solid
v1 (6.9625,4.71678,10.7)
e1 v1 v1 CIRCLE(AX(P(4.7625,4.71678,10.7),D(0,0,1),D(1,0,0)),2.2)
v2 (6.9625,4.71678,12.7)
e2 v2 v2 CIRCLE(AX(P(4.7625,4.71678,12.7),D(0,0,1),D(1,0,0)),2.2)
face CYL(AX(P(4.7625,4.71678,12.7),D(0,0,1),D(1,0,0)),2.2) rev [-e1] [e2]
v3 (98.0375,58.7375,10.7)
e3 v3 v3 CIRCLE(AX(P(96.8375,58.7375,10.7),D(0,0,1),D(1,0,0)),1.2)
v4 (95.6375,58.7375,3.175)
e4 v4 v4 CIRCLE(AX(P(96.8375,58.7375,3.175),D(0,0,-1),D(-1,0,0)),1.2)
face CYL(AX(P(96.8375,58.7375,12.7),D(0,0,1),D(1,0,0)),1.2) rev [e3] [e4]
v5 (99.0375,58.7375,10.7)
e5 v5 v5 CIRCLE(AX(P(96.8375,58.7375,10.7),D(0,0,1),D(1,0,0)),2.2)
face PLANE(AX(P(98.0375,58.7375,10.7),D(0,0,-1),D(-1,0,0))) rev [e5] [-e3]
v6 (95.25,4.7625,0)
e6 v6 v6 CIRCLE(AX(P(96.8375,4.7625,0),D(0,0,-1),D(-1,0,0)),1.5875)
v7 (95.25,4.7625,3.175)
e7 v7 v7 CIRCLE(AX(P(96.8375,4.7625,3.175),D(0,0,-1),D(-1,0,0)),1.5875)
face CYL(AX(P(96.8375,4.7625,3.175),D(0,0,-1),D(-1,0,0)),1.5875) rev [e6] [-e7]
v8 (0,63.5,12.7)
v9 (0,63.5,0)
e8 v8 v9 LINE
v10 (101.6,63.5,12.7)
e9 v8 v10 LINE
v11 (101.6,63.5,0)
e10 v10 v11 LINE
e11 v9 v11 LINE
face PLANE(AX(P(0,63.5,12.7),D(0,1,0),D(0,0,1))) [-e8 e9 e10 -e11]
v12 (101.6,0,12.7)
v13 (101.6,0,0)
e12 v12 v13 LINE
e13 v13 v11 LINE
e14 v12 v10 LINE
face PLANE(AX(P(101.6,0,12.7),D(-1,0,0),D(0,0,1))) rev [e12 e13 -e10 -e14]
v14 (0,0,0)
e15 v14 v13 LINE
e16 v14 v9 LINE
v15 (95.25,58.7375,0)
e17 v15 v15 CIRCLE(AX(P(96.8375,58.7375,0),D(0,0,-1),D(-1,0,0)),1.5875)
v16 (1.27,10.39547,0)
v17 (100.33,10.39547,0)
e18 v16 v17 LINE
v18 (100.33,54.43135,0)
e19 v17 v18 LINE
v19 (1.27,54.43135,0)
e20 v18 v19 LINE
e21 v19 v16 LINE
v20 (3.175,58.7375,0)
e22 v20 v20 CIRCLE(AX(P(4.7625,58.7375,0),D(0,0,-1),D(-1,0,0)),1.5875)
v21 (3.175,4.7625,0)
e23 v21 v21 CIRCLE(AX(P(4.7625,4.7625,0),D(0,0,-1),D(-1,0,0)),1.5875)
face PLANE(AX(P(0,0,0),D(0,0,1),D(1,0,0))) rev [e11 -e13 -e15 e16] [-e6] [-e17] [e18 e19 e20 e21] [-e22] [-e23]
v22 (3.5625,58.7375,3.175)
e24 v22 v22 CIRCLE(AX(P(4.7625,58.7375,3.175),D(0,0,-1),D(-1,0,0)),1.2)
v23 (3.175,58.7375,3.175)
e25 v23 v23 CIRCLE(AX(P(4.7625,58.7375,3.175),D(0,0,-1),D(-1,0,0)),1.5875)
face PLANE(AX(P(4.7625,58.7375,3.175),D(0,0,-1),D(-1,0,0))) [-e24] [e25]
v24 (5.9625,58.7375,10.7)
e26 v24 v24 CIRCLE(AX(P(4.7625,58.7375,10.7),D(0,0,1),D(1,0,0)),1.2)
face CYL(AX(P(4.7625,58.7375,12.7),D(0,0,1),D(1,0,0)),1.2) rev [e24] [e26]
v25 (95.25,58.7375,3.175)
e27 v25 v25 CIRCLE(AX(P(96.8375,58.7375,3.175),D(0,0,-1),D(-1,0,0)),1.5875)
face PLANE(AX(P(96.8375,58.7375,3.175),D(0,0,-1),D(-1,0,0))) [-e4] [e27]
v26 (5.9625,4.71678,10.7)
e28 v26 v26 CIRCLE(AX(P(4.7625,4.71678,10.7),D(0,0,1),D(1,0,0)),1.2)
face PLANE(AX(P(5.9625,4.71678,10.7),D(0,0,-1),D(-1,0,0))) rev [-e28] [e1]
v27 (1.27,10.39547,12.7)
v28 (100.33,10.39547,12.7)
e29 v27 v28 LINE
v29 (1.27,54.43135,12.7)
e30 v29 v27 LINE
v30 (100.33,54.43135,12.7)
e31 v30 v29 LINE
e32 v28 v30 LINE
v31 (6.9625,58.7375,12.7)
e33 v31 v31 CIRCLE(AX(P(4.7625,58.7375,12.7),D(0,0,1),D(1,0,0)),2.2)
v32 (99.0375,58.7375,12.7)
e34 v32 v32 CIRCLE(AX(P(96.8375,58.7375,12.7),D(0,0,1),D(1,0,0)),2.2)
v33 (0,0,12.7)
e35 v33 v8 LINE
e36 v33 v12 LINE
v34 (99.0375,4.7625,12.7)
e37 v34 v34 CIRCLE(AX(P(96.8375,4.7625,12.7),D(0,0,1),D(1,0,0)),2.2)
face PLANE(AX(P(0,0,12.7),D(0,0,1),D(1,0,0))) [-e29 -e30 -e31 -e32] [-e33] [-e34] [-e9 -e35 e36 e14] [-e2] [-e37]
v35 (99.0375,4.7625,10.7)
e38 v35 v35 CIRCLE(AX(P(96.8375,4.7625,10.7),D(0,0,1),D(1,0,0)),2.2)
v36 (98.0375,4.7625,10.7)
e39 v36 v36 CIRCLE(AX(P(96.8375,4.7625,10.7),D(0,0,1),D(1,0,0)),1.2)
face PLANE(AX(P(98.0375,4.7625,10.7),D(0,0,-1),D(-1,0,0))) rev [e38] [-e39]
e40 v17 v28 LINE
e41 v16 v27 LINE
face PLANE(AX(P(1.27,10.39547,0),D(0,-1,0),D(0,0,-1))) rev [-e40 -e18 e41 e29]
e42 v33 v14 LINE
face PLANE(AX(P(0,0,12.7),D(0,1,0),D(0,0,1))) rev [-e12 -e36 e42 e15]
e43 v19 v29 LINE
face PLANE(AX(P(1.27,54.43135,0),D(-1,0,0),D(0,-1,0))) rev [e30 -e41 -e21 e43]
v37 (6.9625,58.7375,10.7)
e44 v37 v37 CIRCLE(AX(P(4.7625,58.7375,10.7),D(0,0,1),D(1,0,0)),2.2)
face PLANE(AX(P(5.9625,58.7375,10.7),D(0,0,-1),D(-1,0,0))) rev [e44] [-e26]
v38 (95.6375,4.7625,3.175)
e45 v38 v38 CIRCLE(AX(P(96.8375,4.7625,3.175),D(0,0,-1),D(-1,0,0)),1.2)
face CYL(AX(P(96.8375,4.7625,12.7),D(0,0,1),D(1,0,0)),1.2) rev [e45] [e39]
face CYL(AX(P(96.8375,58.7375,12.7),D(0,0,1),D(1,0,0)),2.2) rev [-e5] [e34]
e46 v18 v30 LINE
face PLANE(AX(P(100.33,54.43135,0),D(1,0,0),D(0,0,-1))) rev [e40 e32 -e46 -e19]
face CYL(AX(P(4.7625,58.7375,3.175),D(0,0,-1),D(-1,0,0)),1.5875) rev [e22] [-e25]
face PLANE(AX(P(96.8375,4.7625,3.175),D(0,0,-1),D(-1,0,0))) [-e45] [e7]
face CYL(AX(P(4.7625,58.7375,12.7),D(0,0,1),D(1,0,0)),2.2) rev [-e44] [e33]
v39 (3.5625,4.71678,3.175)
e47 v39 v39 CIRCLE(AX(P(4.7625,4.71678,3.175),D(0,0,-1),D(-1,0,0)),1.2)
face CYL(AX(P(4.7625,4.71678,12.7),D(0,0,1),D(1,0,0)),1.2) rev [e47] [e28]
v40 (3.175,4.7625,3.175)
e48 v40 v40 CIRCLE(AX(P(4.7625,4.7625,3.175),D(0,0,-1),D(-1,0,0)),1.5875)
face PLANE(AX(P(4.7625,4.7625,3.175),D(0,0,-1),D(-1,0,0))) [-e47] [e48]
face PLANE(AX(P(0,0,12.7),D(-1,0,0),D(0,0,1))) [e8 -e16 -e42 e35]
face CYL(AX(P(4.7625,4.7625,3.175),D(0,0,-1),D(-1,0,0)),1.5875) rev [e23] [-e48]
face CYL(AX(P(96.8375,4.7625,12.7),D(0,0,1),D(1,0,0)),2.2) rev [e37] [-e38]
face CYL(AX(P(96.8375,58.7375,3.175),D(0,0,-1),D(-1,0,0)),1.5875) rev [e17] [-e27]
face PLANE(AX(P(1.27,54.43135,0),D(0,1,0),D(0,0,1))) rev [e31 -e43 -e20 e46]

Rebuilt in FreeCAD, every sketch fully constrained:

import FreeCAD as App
import Part
import Sketcher
from FreeCAD import Vector
Q = App.Units.Quantity

doc = App.newDocument("Part")
body = doc.addObject("PartDesign::Body", "Body")

sketch1 = doc.addObject("Sketcher::SketchObject", "Sketch")
body.addObject(sketch1)
sketch1.AttachmentSupport = (doc.XY_Plane, [""])
sketch1.MapMode = "FlatFace"
sketch1.addGeometry([
    Part.LineSegment(Vector(0, 64, 0), Vector(0, 0, 0)),
    Part.LineSegment(Vector(0, 0, 0), Vector(102, 0, 0)),
    Part.LineSegment(Vector(102, 0, 0), Vector(102, 64, 0)),
    Part.LineSegment(Vector(102, 64, 0), Vector(0, 64, 0)),
], False)
sketch1.addConstraint([
    Sketcher.Constraint("Coincident", 0, 2, 1, 1),
    Sketcher.Constraint("Coincident", 1, 2, 2, 1),
    Sketcher.Constraint("Coincident", 2, 2, 3, 1),
    Sketcher.Constraint("Coincident", 3, 2, 0, 1),
    Sketcher.Constraint("Vertical", 0),
    Sketcher.Constraint("Horizontal", 1),
    Sketcher.Constraint("Vertical", 2),
    Sketcher.Constraint("Horizontal", 3),
    Sketcher.Constraint("Coincident", 0, 2, -1, 1),
    Sketcher.Constraint("DistanceX", 1, 1, 1, 2, Q("4 in")),
    Sketcher.Constraint("DistanceY", 0, 2, 0, 1, Q("2.5 in")),
])
pad1 = doc.addObject("PartDesign::Pad", "Pad")
body.addObject(pad1)
pad1.Profile = sketch1
pad1.Length = Q("0.5 in")

sketch2 = doc.addObject("Sketcher::SketchObject", "Sketch001")
body.addObject(sketch2)
sketch2.AttachmentSupport = (doc.XY_Plane, [""])
sketch2.MapMode = "FlatFace"
sketch2.AttachmentOffset = App.Placement(Vector(0, 0, 0.5 * 25.4), App.Rotation())
sketch2.addGeometry([
    Part.LineSegment(Vector(1, 54, 0), Vector(1, 10, 0)),
    Part.LineSegment(Vector(1, 10, 0), Vector(100, 10, 0)),
    Part.LineSegment(Vector(100, 10, 0), Vector(100, 54, 0)),
    Part.LineSegment(Vector(100, 54, 0), Vector(1, 54, 0)),
], False)
sketch2.addConstraint([
    Sketcher.Constraint("Coincident", 0, 2, 1, 1),
    Sketcher.Constraint("Coincident", 1, 2, 2, 1),
    Sketcher.Constraint("Coincident", 2, 2, 3, 1),
    Sketcher.Constraint("Coincident", 3, 2, 0, 1),
    Sketcher.Constraint("Vertical", 0),
    Sketcher.Constraint("Horizontal", 1),
    Sketcher.Constraint("Vertical", 2),
    Sketcher.Constraint("Horizontal", 3),
    Sketcher.Constraint("DistanceX", 1, 1, 1, 2, Q("3.9 in")),
    Sketcher.Constraint("DistanceX", -1, 1, 0, 2, Q("0.05 in")),
    Sketcher.Constraint("DistanceY", 0, 2, 0, 1, Q("44.03588 mm")),
    Sketcher.Constraint("DistanceY", -1, 1, 0, 2, Q("10.39547 mm")),
])
pocket1 = doc.addObject("PartDesign::Pocket", "Pocket")
body.addObject(pocket1)
pocket1.Profile = sketch2
pocket1.Length = Q("0.5 in")

sketch3 = doc.addObject("Sketcher::SketchObject", "Sketch002")
body.addObject(sketch3)
sketch3.AttachmentSupport = (doc.XY_Plane, [""])
sketch3.MapMode = "FlatFace"
sketch3.addGeometry([
    Part.Circle(Vector(96.8, 4.8, 0), Vector(0, 0, 1), 1.6),
    Part.Circle(Vector(96.8, 58.7, 0), Vector(0, 0, 1), 1.6),
    Part.Circle(Vector(4.8, 58.7, 0), Vector(0, 0, 1), 1.6),
    Part.Circle(Vector(4.8, 4.8, 0), Vector(0, 0, 1), 1.6),
], False)
sketch3.addConstraint([
    Sketcher.Constraint("Equal", 0, 1),
    Sketcher.Constraint("Equal", 1, 2),
    Sketcher.Constraint("Equal", 2, 3),
    Sketcher.Constraint("Horizontal", 1, 3, 2, 3),
    Sketcher.Constraint("Horizontal", 0, 3, 3, 3),
    Sketcher.Constraint("Vertical", 0, 3, 1, 3),
    Sketcher.Constraint("Vertical", 2, 3, 3, 3),
    Sketcher.Constraint("Diameter", 0, Q("0.125 in")),
    Sketcher.Constraint("DistanceX", -1, 1, 0, 3, Q("3.8125 in")),
    Sketcher.Constraint("DistanceY", -1, 1, 0, 3, Q("0.1875 in")),
    Sketcher.Constraint("DistanceY", -1, 1, 1, 3, Q("2.3125 in")),
    Sketcher.Constraint("DistanceX", -1, 1, 2, 3, Q("0.1875 in")),
])
pocket2 = doc.addObject("PartDesign::Pocket", "Pocket001")
body.addObject(pocket2)
pocket2.Profile = sketch3
pocket2.Length = Q("0.125 in")
pocket2.Reversed = True

sketch4 = doc.addObject("Sketcher::SketchObject", "Sketch003")
body.addObject(sketch4)
sketch4.AttachmentSupport = (doc.XY_Plane, [""])
sketch4.MapMode = "FlatFace"
sketch4.AttachmentOffset = App.Placement(Vector(0, 0, 0.5 * 25.4), App.Rotation())
sketch4.addGeometry([
    Part.Circle(Vector(96.8, 4.8, 0), Vector(0, 0, 1), 1.2),
    Part.Circle(Vector(96.8, 58.7, 0), Vector(0, 0, 1), 1.2),
    Part.Circle(Vector(4.8, 58.7, 0), Vector(0, 0, 1), 1.2),
    Part.Circle(Vector(4.8, 4.7, 0), Vector(0, 0, 1), 1.2),
], False)
sketch4.addConstraint([
    Sketcher.Constraint("Equal", 0, 1),
    Sketcher.Constraint("Equal", 1, 2),
    Sketcher.Constraint("Equal", 2, 3),
    Sketcher.Constraint("Horizontal", 1, 3, 2, 3),
    Sketcher.Constraint("Vertical", 0, 3, 1, 3),
    Sketcher.Constraint("Vertical", 2, 3, 3, 3),
    Sketcher.Constraint("Diameter", 0, Q("2.4 mm")),
    Sketcher.Constraint("DistanceX", -1, 1, 0, 3, Q("3.8125 in")),
    Sketcher.Constraint("DistanceY", -1, 1, 0, 3, Q("0.1875 in")),
    Sketcher.Constraint("DistanceY", -1, 1, 1, 3, Q("2.3125 in")),
    Sketcher.Constraint("DistanceX", -1, 1, 2, 3, Q("0.1875 in")),
    Sketcher.Constraint("DistanceY", -1, 1, 3, 3, Q("0.1857 in")),
])
doc.recompute()
hole = doc.addObject("PartDesign::Hole", "Hole")
body.addObject(hole)
hole.Profile = sketch4
hole.ThreadType = "None"
hole.Diameter = 2.4
hole.DepthType = "ThroughAll"
hole.HoleCutType = "Counterbore"
hole.HoleCutDiameter = 4.4
hole.HoleCutDepth = 2

doc.recompute()
